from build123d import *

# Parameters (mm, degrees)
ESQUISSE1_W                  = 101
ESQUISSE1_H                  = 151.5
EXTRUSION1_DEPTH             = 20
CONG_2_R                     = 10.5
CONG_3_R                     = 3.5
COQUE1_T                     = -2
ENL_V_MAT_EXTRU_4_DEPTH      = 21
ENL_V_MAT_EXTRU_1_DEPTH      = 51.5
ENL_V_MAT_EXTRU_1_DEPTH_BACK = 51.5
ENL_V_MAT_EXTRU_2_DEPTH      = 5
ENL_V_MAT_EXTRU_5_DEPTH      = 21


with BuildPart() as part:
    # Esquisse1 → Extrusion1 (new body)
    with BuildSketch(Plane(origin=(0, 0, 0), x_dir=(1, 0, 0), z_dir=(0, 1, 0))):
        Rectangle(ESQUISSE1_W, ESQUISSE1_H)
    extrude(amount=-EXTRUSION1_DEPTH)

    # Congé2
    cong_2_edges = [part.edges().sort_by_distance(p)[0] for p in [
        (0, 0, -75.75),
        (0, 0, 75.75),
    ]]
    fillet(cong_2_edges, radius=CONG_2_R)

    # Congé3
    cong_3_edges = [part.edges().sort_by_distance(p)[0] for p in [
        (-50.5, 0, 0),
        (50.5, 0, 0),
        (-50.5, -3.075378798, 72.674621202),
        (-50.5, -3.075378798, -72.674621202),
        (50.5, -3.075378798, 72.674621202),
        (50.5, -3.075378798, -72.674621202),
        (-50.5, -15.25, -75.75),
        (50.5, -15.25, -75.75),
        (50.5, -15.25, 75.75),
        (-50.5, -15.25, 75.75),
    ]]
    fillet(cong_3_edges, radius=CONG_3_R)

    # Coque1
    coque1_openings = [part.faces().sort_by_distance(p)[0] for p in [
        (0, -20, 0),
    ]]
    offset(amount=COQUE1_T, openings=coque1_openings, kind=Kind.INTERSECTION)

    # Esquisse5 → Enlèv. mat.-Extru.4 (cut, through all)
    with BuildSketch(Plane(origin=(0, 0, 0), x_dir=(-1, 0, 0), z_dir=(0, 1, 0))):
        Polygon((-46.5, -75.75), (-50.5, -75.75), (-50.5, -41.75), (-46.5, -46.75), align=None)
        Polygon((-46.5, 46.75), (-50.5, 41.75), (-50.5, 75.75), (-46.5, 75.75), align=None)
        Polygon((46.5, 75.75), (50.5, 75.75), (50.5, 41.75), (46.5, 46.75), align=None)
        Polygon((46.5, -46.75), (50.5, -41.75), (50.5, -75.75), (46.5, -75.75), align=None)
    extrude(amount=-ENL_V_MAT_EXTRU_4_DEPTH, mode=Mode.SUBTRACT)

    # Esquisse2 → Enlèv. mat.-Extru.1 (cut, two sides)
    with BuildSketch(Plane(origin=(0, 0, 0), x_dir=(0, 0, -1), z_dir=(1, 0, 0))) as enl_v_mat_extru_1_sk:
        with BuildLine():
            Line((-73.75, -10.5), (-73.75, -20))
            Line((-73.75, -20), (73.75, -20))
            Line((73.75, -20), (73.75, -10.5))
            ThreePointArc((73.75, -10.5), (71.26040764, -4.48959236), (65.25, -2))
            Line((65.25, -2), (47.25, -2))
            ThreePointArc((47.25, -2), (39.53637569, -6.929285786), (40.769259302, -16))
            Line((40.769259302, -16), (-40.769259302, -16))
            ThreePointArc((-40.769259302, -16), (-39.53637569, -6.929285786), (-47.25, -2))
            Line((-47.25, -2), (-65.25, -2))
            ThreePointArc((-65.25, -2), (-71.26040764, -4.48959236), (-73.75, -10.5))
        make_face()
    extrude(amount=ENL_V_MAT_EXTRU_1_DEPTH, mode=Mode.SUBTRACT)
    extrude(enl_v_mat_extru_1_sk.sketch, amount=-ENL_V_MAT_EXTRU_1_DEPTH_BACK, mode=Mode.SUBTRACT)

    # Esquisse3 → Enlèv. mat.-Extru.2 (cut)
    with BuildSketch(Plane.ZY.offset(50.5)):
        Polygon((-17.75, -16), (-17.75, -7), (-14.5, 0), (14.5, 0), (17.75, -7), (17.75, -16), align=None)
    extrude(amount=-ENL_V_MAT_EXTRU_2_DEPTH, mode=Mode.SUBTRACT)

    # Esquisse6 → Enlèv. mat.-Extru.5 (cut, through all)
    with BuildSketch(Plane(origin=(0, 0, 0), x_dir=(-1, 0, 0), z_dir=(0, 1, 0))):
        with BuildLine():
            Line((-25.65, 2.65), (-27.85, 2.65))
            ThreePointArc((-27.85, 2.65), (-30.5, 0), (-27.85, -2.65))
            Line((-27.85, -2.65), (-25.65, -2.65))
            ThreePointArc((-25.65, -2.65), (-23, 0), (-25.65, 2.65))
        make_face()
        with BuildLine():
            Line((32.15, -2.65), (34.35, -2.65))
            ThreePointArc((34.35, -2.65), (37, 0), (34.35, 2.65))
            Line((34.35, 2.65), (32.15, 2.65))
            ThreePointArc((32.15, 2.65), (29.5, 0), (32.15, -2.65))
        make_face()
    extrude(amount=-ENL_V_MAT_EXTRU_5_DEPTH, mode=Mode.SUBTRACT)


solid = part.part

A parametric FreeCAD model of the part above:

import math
import FreeCAD as App
import Part
import Sketcher

V = App.Vector


def edges_at(feature, points):
    """Names of the edges that pass closest to the given points."""
    edges = feature.Shape.Edges
    near = lambda p: min(range(len(edges)), key=lambda i: edges[i].distToShape(Part.Vertex(*p))[0])
    return sorted({f"Edge{near(p) + 1}" for p in points})


def faces_at(feature, points):
    """Names of the faces that lie closest to the given points."""
    faces = feature.Shape.Faces
    near = lambda p: min(range(len(faces)), key=lambda i: faces[i].distToShape(Part.Vertex(*p))[0])
    return sorted({f"Face{near(p) + 1}" for p in points})

doc = App.newDocument("Part")
params = doc.addObject("Spreadsheet::Sheet", "Params")
for row, (alias, value) in enumerate([
    ("sketch1_width", "101 mm"),
    ("sketch1_height", "151.5 mm"),
    ("pad1_length", "20 mm"),
    ("fillet_radius", "10.5 mm"),
    ("fillet2_radius", "3.5 mm"),
    ("thickness_wall", "2 mm"),
    ("sketch2_width", "4 mm"),
    ("sketch2_height", "29 mm"),
    ("sketch2_height2", "34 mm"),
    ("sketch3_radius", "8.5 mm"),
    ("sketch3_height", "18 mm"),
    ("sketch3_width", "9.5 mm"),
    ("sketch3_height2", "147.5 mm"),
    ("sketch4_width", "9 mm"),
    ("sketch4_height", "29 mm"),
    ("sketch4_height2", "35.5 mm"),
    ("pocket3_length", "5 mm"),
    ("sketch5_radius", "2.65 mm"),
    ("sketch5_width", "2.2 mm"),
], start=1):
    params.set(f"A{row}", alias)
    params.set(f"B{row}", "=" + value)
    params.setAlias(f"B{row}", alias)

body = doc.addObject("PartDesign::Body", "Body")

# Sketch on XZ plane
sketch1 = body.newObject("Sketcher::SketchObject", "Sketch")
sketch1.AttachmentSupport = (doc.getObject("XZ_Plane"), [""])
sketch1.MapMode = "FlatFace"
sketch1.addGeometry([
    Part.LineSegment(V(-50, -76, 0), V(-50, 76, 0)),
    Part.LineSegment(V(-50, 76, 0), V(50, 76, 0)),
    Part.LineSegment(V(50, 76, 0), V(50, -76, 0)),
    Part.LineSegment(V(50, -76, 0), V(-50, -76, 0)),
], False)
sketch1.addConstraint([
    Sketcher.Constraint("Coincident", 0, 2, 1, 1),
    Sketcher.Constraint("Coincident", 1, 2, 2, 1),
    Sketcher.Constraint("Coincident", 2, 2, 3, 1),
    Sketcher.Constraint("Coincident", 3, 2, 0, 1),
    Sketcher.Constraint("Vertical", 0),
    Sketcher.Constraint("Horizontal", 1),
    Sketcher.Constraint("Vertical", 2),
    Sketcher.Constraint("Horizontal", 3),
    Sketcher.Constraint("Symmetric", 0, 2, 2, 2, -1, 1),
    Sketcher.Constraint("DistanceX", 1, 1, 1, 2, 101.0),
    Sketcher.Constraint("DistanceY", 0, 1, 0, 2, 151.5),
])
sketch1.setExpression("Constraints[9]", "Params.sketch1_width")
sketch1.setExpression("Constraints[10]", "Params.sketch1_height")
pad1 = body.newObject("PartDesign::Pad", "Pad")
pad1.Profile = sketch1
pad1.setExpression("Length", "Params.pad1_length")
doc.recompute()

fillet = body.newObject("PartDesign::Fillet", "Fillet")
fillet.Base = (pad1, edges_at(pad1, [(0, 0, -75.75), (0, 0, 75.75)]))
fillet.setExpression("Radius", "Params.fillet_radius")
doc.recompute()

fillet2 = body.newObject("PartDesign::Fillet", "Fillet001")
fillet2.Base = (fillet, edges_at(fillet, [
    (-50.5, 0, 0),
    (50.5, 0, 0),
    (-50.5, -3.075, 72.675),
    (-50.5, -3.075, -72.675),
    (50.5, -3.075, 72.675),
    (50.5, -3.075, -72.675),
    (-50.5, -15.25, -75.75),
    (50.5, -15.25, -75.75),
    (50.5, -15.25, 75.75),
    (-50.5, -15.25, 75.75),
]))
fillet2.setExpression("Radius", "Params.fillet2_radius")
doc.recompute()

thickness = body.newObject("PartDesign::Thickness", "Thickness")
thickness.Base = (fillet2, faces_at(fillet2, [(0, -20, 0)]))
thickness.setExpression("Value", "Params.thickness_wall")
thickness.Reversed = True
thickness.Join = "Intersection"

# Sketch on XZ plane
sketch2 = body.newObject("Sketcher::SketchObject", "Sketch001")
sketch2.AttachmentSupport = (doc.getObject("XZ_Plane"), [""])
sketch2.MapMode = "FlatFace"
sketch2.addGeometry([
    Part.LineSegment(V(50.5, -75.8, 0), V(46.5, -75.8, 0)),  # 0
    Part.LineSegment(V(46.5, -75.8, 0), V(46.5, -46.8, 0)),  # 1
    Part.LineSegment(V(46.5, -46.8, 0), V(50.5, -41.8, 0)),  # 2
    Part.LineSegment(V(50.5, -41.8, 0), V(50.5, -75.8, 0)),  # 3
    Part.LineSegment(V(50.5, 41.8, 0), V(46.5, 46.8, 0)),  # 4
    Part.LineSegment(V(46.5, 46.8, 0), V(46.5, 75.8, 0)),  # 5
    Part.LineSegment(V(46.5, 75.8, 0), V(50.5, 75.8, 0)),  # 6
    Part.LineSegment(V(50.5, 75.8, 0), V(50.5, 41.8, 0)),  # 7
    Part.LineSegment(V(-50.5, 75.8, 0), V(-46.5, 75.8, 0)),  # 8
    Part.LineSegment(V(-46.5, 75.8, 0), V(-46.5, 46.8, 0)),  # 9
    Part.LineSegment(V(-46.5, 46.8, 0), V(-50.5, 41.8, 0)),  # 10
    Part.LineSegment(V(-50.5, 41.8, 0), V(-50.5, 75.8, 0)),  # 11
    Part.LineSegment(V(-50.5, -41.8, 0), V(-46.5, -46.8, 0)),  # 12
    Part.LineSegment(V(-46.5, -46.8, 0), V(-46.5, -75.8, 0)),  # 13
    Part.LineSegment(V(-46.5, -75.8, 0), V(-50.5, -75.8, 0)),  # 14
    Part.LineSegment(V(-50.5, -75.8, 0), V(-50.5, -41.8, 0)),  # 15
], False)
sketch2.addConstraint([
    Sketcher.Constraint("Coincident", 0, 2, 1, 1),
    Sketcher.Constraint("Coincident", 1, 2, 2, 1),
    Sketcher.Constraint("Coincident", 2, 2, 3, 1),
    Sketcher.Constraint("Coincident", 3, 2, 0, 1),
    Sketcher.Constraint("Coincident", 4, 2, 5, 1),
    Sketcher.Constraint("Coincident", 5, 2, 6, 1),
    Sketcher.Constraint("Coincident", 6, 2, 7, 1),
    Sketcher.Constraint("Coincident", 7, 2, 4, 1),
    Sketcher.Constraint("Coincident", 8, 2, 9, 1),
    Sketcher.Constraint("Coincident", 9, 2, 10, 1),
    Sketcher.Constraint("Coincident", 10, 2, 11, 1),
    Sketcher.Constraint("Coincident", 11, 2, 8, 1),
    Sketcher.Constraint("Coincident", 12, 2, 13, 1),
    Sketcher.Constraint("Coincident", 13, 2, 14, 1),
    Sketcher.Constraint("Coincident", 14, 2, 15, 1),
    Sketcher.Constraint("Coincident", 15, 2, 12, 1),
    Sketcher.Constraint("Horizontal", 0),
    Sketcher.Constraint("Vertical", 1),
    Sketcher.Constraint("Vertical", 3),
    Sketcher.Constraint("Vertical", 5),
    Sketcher.Constraint("Horizontal", 6),
    Sketcher.Constraint("Vertical", 7),
    Sketcher.Constraint("Horizontal", 8),
    Sketcher.Constraint("Vertical", 9),
    Sketcher.Constraint("Vertical", 11),
    Sketcher.Constraint("Vertical", 13),
    Sketcher.Constraint("Horizontal", 14),
    Sketcher.Constraint("Vertical", 15),
    Sketcher.Constraint("Symmetric", 0, 2, 8, 2, -1, 1),
    Sketcher.Constraint("Symmetric", 2, 2, 10, 2, -1, 1),
    Sketcher.Constraint("Symmetric", 4, 2, 12, 2, -1, 1),
    Sketcher.Constraint("Symmetric", 6, 2, 14, 2, -1, 1),
    Sketcher.Constraint("Symmetric", 5, 2, 8, 2, -2),
    Sketcher.Constraint("Symmetric", 7, 2, 10, 2, -2),
    Sketcher.Constraint("Parallel", 2, 10),
    Sketcher.Constraint("Parallel", 4, 12),
    Sketcher.Constraint("Horizontal", 4, 2, 9, 2),
    Sketcher.Constraint("DistanceX", 0, 2, 0, 1, 4.0),
    Sketcher.Constraint("DistanceY", 1, 1, 1, 2, 29.0),
    Sketcher.Constraint("DistanceY", 3, 2, 3, 1, 34.0),
    Sketcher.Constraint("DistanceX", 8, 2, 5, 2, 93.0),
    Sketcher.Constraint("DistanceY", 2, 2, 4, 2, 88.5),
])
sketch2.setExpression("Constraints[37]", "Params.sketch2_width")
sketch2.setExpression("Constraints[38]", "Params.sketch2_height")
sketch2.setExpression("Constraints[39]", "Params.sketch2_height2")
pocket1 = body.newObject("PartDesign::Pocket", "Pocket")
pocket1.Profile = sketch2
pocket1.Type = "ThroughAll"
pocket1.Reversed = True

# Sketch on YZ plane
sketch3 = body.newObject("Sketcher::SketchObject", "Sketch002")
sketch3.AttachmentSupport = (doc.getObject("YZ_Plane"), [""])
sketch3.MapMode = "FlatFace"
sketch3.addGeometry([
    Part.LineSegment(V(-10, 74, 0), V(-20, 74, 0)),  # 0
    Part.LineSegment(V(-20, 74, 0), V(-20, -74, 0)),  # 1
    Part.LineSegment(V(-20, -74, 0), V(-10, -74, 0)),  # 2
    Part.ArcOfCircle(Part.Circle(V(-10, -65, 0), V(0, 0, 1), 8), math.radians(-90), math.radians(0)),  # 3
    Part.LineSegment(V(-2, -65, 0), V(-2, -47, 0)),  # 4
    Part.ArcOfCircle(Part.Circle(V(-10, -47, 0), V(0, 0, 1), 8), math.radians(0), math.radians(130)),  # 5
    Part.LineSegment(V(-16, -41, 0), V(-16, 41, 0)),  # 6
    Part.ArcOfCircle(Part.Circle(V(-10, 47, 0), V(0, 0, 1), 8), math.radians(-130), math.radians(0)),  # 7
    Part.LineSegment(V(-2, 47, 0), V(-2, 65, 0)),  # 8
    Part.ArcOfCircle(Part.Circle(V(-10, 65, 0), V(0, 0, 1), 8), math.radians(0), math.radians(90)),  # 9
], False)
sketch3.addConstraint([
    Sketcher.Constraint("Coincident", 0, 2, 1, 1),
    Sketcher.Constraint("Coincident", 1, 2, 2, 1),
    Sketcher.Constraint("Tangent", 2, 2, 3, 1),
    Sketcher.Constraint("Tangent", 3, 2, 4, 1),
    Sketcher.Constraint("Tangent", 4, 2, 5, 1),
    Sketcher.Constraint("Coincident", 5, 2, 6, 1),
    Sketcher.Constraint("Coincident", 6, 2, 7, 1),
    Sketcher.Constraint("Tangent", 7, 2, 8, 1),
    Sketcher.Constraint("Tangent", 8, 2, 9, 1),
    Sketcher.Constraint("Tangent", 9, 2, 0, 1),
    Sketcher.Constraint("Horizontal", 0),
    Sketcher.Constraint("Vertical", 1),
    Sketcher.Constraint("Horizontal", 2),
    Sketcher.Constraint("Vertical", 4),
    Sketcher.Constraint("Vertical", 6),
    Sketcher.Constraint("Vertical", 8),
    Sketcher.Constraint("Equal", 3, 5),
    Sketcher.Constraint("Equal", 5, 7),
    Sketcher.Constraint("Equal", 7, 9),
    Sketcher.Constraint("Symmetric", 5, 3, 7, 3, -1),
    Sketcher.Constraint("Equal", 4, 8),
    Sketcher.Constraint("Radius", 3, 8.5),
    Sketcher.Constraint("DistanceY", 4, 1, 4, 2, 18.0),
    Sketcher.Constraint("DistanceX", 0, 2, 0, 1, 9.5),
    Sketcher.Constraint("DistanceY", 1, 2, 1, 1, 147.5),
    Sketcher.Constraint("DistanceX", 0, 2, -1, 1, 20.0),
    Sketcher.Constraint("DistanceX", 5, 2, -1, 1, 16.0),
])
sketch3.setExpression("Constraints[21]", "Params.sketch3_radius")
sketch3.setExpression("Constraints[22]", "Params.sketch3_height")
sketch3.setExpression("Constraints[23]", "Params.sketch3_width")
sketch3.setExpression("Constraints[24]", "Params.sketch3_height2")
pocket2 = body.newObject("PartDesign::Pocket", "Pocket001")
pocket2.Profile = sketch3
pocket2.Type = "ThroughAll"
pocket2.Midplane = True

# Sketch on YZ plane
sketch4 = body.newObject("Sketcher::SketchObject", "Sketch003")
sketch4.AttachmentSupport = (doc.getObject("YZ_Plane"), [""])
sketch4.MapMode = "FlatFace"
sketch4.AttachmentOffset = App.Placement(V(0, 0, -50.5), App.Rotation())
sketch4.addGeometry([
    Part.LineSegment(V(-7, -18, 0), V(-16, -18, 0)),  # 0
    Part.LineSegment(V(-16, -18, 0), V(-16, 18, 0)),  # 1
    Part.LineSegment(V(-16, 18, 0), V(-7, 18, 0)),  # 2
    Part.LineSegment(V(-7, 18, 0), V(0, 14, 0)),  # 3
    Part.LineSegment(V(0, 14, 0), V(0, -14, 0)),  # 4
    Part.LineSegment(V(0, -14, 0), V(-7, -18, 0)),  # 5
], False)
sketch4.addConstraint([
    Sketcher.Constraint("Coincident", 0, 2, 1, 1),
    Sketcher.Constraint("Coincident", 1, 2, 2, 1),
    Sketcher.Constraint("Coincident", 2, 2, 3, 1),
    Sketcher.Constraint("Coincident", 3, 2, 4, 1),
    Sketcher.Constraint("Coincident", 4, 2, 5, 1),
    Sketcher.Constraint("Coincident", 5, 2, 0, 1),
    Sketcher.Constraint("Horizontal", 0),
    Sketcher.Constraint("Vertical", 1),
    Sketcher.Constraint("Horizontal", 2),
    Sketcher.Constraint("Vertical", 4),
    Sketcher.Constraint("Symmetric", 3, 2, 4, 2, -1, 1),
    Sketcher.Constraint("Symmetric", 2, 2, 5, 2, -1),
    Sketcher.Constraint("DistanceX", 0, 2, 0, 1, 9.0),
    Sketcher.Constraint("DistanceY", 4, 2, 4, 1, 29.0),
    Sketcher.Constraint("DistanceY", 1, 1, 1, 2, 35.5),
    Sketcher.Constraint("DistanceX", 0, 2, -1, 1, 16.0),
])
sketch4.setExpression("Constraints[12]", "Params.sketch4_width")
sketch4.setExpression("Constraints[13]", "Params.sketch4_height")
sketch4.setExpression("Constraints[14]", "Params.sketch4_height2")
pocket3 = body.newObject("PartDesign::Pocket", "Pocket002")
pocket3.Profile = sketch4
pocket3.setExpression("Length", "Params.pocket3_length")
pocket3.Reversed = True

# Sketch on XZ plane
sketch5 = body.newObject("Sketcher::SketchObject", "Sketch004")
sketch5.AttachmentSupport = (doc.getObject("XZ_Plane"), [""])
sketch5.MapMode = "FlatFace"
sketch5.addGeometry([
    Part.LineSegment(V(25.6, 2.6, 0), V(27.9, 2.6, 0)),  # 0
    Part.ArcOfCircle(Part.Circle(V(27.9, 0, 0), V(0, 0, 1), 2.6), math.radians(-90), math.radians(90)),  # 1
    Part.LineSegment(V(27.9, -2.6, 0), V(25.6, -2.6, 0)),  # 2
    Part.ArcOfCircle(Part.Circle(V(25.6, 0, 0), V(0, 0, 1), 2.6), math.radians(90), math.radians(270)),  # 3
    Part.LineSegment(V(-32.1, -2.6, 0), V(-34.4, -2.6, 0)),  # 4
    Part.ArcOfCircle(Part.Circle(V(-34.4, 0, 0), V(0, 0, 1), 2.6), math.radians(90), math.radians(270)),  # 5
    Part.LineSegment(V(-34.4, 2.6, 0), V(-32.1, 2.6, 0)),  # 6
    Part.ArcOfCircle(Part.Circle(V(-32.1, 0, 0), V(0, 0, 1), 2.6), math.radians(-90), math.radians(90)),  # 7
], False)
sketch5.addConstraint([
    Sketcher.Constraint("Tangent", 0, 2, 1, 2),
    Sketcher.Constraint("Tangent", 1, 1, 2, 1),
    Sketcher.Constraint("Tangent", 2, 2, 3, 2),
    Sketcher.Constraint("Tangent", 3, 1, 0, 1),
    Sketcher.Constraint("Tangent", 4, 2, 5, 2),
    Sketcher.Constraint("Tangent", 5, 1, 6, 1),
    Sketcher.Constraint("Tangent", 6, 2, 7, 2),
    Sketcher.Constraint("Tangent", 7, 1, 4, 1),
    Sketcher.Constraint("Horizontal", 0),
    Sketcher.Constraint("Horizontal", 2),
    Sketcher.Constraint("Horizontal", 4),
    Sketcher.Constraint("Horizontal", 6),
    Sketcher.Constraint("Equal", 3, 5),
    Sketcher.Constraint("PointOnObject", 1, 3, -1),
    Sketcher.Constraint("PointOnObject", 5, 3, -1),
    Sketcher.Constraint("Equal", 2, 4),
    Sketcher.Constraint("Radius", 1, 2.65),
    Sketcher.Constraint("DistanceX", 0, 1, 0, 2, 2.2),
    Sketcher.Constraint("DistanceX", 5, 3, 3, 3, 60.0),
    Sketcher.Constraint("DistanceX", -1, 1, 1, 3, 27.85),
])
sketch5.setExpression("Constraints[16]", "Params.sketch5_radius")
sketch5.setExpression("Constraints[17]", "Params.sketch5_width")
pocket4 = body.newObject("PartDesign::Pocket", "Pocket003")
pocket4.Profile = sketch5
pocket4.Type = "ThroughAll"
pocket4.Reversed = True

doc.recompute()
